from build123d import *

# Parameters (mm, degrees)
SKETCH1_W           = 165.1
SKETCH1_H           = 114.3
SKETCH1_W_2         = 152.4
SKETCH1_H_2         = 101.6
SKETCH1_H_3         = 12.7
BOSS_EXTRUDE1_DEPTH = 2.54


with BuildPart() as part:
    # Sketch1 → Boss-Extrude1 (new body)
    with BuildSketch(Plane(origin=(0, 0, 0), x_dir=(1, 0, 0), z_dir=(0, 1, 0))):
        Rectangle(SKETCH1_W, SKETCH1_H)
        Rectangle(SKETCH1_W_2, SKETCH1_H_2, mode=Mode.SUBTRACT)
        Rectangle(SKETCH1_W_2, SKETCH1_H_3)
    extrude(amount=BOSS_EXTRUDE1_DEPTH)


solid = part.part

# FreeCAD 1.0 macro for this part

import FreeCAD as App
import Part
import Sketcher
Q = App.Units.Quantity


def add_polygon(sketch, points):
    """Adds a closed chain of lines whose ends are joined by coincident constraints."""
    first, n = sketch.GeometryCount, len(points)
    for a, b in zip(points, points[1:] + points[:1]):
        sketch.addGeometry(Part.LineSegment(App.Vector(*a, 0), App.Vector(*b, 0)), False)
    for i in range(n):
        sketch.addConstraint(Sketcher.Constraint("Coincident", first + i, 2, first + (i + 1) % n, 1))

doc = App.newDocument("Part")
body = doc.addObject("PartDesign::Body", "Body")

sketch1 = doc.addObject("Sketcher::SketchObject", "Sketch")
body.addObject(sketch1)
sketch1.AttachmentSupport = (doc.XZ_Plane, [""])
sketch1.MapMode = "FlatFace"
add_polygon(sketch1, [(-82.55, -57.15), (-82.55, 57.15), (82.55, 57.15), (82.55, -57.15)])
add_polygon(sketch1, [(76.2, 50.8), (-76.2, 50.8), (-76.2, 6.35), (76.2, 6.35)])
add_polygon(sketch1, [(76.2, -50.8), (76.2, -6.35), (-76.2, -6.35), (-76.2, -50.8)])
sketch1.addConstraint([
    Sketcher.Constraint("Vertical", 0),
    Sketcher.Constraint("Horizontal", 1),
    Sketcher.Constraint("Vertical", 2),
    Sketcher.Constraint("Horizontal", 3),
    Sketcher.Constraint("Horizontal", 4),
    Sketcher.Constraint("Vertical", 5),
    Sketcher.Constraint("Horizontal", 6),
    Sketcher.Constraint("Vertical", 7),
    Sketcher.Constraint("Vertical", 8),
    Sketcher.Constraint("Horizontal", 9),
    Sketcher.Constraint("Vertical", 10),
    Sketcher.Constraint("Horizontal", 11),
    Sketcher.Constraint("Symmetric", 0, 2, 2, 2, -1, 1),
    Sketcher.Constraint("Symmetric", 5, 2, 8, 2, -1, 1),
    Sketcher.Constraint("Symmetric", 7, 2, 10, 2, -1, 1),
    Sketcher.Constraint("Vertical", 7, 2, 8, 2),
    Sketcher.Constraint("DistanceX", 4, 2, 4, 1, Q("6 in")),
    Sketcher.Constraint("DistanceX", 1, 1, 1, 2, Q("6.5 in")),
    Sketcher.Constraint("DistanceY", 0, 1, 0, 2, Q("4.5 in")),
    Sketcher.Constraint("DistanceY", -1, 1, 4, 2, Q("2 in")),
    Sketcher.Constraint("DistanceY", 5, 2, 0, 2, Q("2 in")),
])
pad1 = doc.addObject("PartDesign::Pad", "Pad")
body.addObject(pad1)
pad1.Profile = sketch1
pad1.Length = Q("0.1 in")
pad1.Reversed = True

doc.recompute()
